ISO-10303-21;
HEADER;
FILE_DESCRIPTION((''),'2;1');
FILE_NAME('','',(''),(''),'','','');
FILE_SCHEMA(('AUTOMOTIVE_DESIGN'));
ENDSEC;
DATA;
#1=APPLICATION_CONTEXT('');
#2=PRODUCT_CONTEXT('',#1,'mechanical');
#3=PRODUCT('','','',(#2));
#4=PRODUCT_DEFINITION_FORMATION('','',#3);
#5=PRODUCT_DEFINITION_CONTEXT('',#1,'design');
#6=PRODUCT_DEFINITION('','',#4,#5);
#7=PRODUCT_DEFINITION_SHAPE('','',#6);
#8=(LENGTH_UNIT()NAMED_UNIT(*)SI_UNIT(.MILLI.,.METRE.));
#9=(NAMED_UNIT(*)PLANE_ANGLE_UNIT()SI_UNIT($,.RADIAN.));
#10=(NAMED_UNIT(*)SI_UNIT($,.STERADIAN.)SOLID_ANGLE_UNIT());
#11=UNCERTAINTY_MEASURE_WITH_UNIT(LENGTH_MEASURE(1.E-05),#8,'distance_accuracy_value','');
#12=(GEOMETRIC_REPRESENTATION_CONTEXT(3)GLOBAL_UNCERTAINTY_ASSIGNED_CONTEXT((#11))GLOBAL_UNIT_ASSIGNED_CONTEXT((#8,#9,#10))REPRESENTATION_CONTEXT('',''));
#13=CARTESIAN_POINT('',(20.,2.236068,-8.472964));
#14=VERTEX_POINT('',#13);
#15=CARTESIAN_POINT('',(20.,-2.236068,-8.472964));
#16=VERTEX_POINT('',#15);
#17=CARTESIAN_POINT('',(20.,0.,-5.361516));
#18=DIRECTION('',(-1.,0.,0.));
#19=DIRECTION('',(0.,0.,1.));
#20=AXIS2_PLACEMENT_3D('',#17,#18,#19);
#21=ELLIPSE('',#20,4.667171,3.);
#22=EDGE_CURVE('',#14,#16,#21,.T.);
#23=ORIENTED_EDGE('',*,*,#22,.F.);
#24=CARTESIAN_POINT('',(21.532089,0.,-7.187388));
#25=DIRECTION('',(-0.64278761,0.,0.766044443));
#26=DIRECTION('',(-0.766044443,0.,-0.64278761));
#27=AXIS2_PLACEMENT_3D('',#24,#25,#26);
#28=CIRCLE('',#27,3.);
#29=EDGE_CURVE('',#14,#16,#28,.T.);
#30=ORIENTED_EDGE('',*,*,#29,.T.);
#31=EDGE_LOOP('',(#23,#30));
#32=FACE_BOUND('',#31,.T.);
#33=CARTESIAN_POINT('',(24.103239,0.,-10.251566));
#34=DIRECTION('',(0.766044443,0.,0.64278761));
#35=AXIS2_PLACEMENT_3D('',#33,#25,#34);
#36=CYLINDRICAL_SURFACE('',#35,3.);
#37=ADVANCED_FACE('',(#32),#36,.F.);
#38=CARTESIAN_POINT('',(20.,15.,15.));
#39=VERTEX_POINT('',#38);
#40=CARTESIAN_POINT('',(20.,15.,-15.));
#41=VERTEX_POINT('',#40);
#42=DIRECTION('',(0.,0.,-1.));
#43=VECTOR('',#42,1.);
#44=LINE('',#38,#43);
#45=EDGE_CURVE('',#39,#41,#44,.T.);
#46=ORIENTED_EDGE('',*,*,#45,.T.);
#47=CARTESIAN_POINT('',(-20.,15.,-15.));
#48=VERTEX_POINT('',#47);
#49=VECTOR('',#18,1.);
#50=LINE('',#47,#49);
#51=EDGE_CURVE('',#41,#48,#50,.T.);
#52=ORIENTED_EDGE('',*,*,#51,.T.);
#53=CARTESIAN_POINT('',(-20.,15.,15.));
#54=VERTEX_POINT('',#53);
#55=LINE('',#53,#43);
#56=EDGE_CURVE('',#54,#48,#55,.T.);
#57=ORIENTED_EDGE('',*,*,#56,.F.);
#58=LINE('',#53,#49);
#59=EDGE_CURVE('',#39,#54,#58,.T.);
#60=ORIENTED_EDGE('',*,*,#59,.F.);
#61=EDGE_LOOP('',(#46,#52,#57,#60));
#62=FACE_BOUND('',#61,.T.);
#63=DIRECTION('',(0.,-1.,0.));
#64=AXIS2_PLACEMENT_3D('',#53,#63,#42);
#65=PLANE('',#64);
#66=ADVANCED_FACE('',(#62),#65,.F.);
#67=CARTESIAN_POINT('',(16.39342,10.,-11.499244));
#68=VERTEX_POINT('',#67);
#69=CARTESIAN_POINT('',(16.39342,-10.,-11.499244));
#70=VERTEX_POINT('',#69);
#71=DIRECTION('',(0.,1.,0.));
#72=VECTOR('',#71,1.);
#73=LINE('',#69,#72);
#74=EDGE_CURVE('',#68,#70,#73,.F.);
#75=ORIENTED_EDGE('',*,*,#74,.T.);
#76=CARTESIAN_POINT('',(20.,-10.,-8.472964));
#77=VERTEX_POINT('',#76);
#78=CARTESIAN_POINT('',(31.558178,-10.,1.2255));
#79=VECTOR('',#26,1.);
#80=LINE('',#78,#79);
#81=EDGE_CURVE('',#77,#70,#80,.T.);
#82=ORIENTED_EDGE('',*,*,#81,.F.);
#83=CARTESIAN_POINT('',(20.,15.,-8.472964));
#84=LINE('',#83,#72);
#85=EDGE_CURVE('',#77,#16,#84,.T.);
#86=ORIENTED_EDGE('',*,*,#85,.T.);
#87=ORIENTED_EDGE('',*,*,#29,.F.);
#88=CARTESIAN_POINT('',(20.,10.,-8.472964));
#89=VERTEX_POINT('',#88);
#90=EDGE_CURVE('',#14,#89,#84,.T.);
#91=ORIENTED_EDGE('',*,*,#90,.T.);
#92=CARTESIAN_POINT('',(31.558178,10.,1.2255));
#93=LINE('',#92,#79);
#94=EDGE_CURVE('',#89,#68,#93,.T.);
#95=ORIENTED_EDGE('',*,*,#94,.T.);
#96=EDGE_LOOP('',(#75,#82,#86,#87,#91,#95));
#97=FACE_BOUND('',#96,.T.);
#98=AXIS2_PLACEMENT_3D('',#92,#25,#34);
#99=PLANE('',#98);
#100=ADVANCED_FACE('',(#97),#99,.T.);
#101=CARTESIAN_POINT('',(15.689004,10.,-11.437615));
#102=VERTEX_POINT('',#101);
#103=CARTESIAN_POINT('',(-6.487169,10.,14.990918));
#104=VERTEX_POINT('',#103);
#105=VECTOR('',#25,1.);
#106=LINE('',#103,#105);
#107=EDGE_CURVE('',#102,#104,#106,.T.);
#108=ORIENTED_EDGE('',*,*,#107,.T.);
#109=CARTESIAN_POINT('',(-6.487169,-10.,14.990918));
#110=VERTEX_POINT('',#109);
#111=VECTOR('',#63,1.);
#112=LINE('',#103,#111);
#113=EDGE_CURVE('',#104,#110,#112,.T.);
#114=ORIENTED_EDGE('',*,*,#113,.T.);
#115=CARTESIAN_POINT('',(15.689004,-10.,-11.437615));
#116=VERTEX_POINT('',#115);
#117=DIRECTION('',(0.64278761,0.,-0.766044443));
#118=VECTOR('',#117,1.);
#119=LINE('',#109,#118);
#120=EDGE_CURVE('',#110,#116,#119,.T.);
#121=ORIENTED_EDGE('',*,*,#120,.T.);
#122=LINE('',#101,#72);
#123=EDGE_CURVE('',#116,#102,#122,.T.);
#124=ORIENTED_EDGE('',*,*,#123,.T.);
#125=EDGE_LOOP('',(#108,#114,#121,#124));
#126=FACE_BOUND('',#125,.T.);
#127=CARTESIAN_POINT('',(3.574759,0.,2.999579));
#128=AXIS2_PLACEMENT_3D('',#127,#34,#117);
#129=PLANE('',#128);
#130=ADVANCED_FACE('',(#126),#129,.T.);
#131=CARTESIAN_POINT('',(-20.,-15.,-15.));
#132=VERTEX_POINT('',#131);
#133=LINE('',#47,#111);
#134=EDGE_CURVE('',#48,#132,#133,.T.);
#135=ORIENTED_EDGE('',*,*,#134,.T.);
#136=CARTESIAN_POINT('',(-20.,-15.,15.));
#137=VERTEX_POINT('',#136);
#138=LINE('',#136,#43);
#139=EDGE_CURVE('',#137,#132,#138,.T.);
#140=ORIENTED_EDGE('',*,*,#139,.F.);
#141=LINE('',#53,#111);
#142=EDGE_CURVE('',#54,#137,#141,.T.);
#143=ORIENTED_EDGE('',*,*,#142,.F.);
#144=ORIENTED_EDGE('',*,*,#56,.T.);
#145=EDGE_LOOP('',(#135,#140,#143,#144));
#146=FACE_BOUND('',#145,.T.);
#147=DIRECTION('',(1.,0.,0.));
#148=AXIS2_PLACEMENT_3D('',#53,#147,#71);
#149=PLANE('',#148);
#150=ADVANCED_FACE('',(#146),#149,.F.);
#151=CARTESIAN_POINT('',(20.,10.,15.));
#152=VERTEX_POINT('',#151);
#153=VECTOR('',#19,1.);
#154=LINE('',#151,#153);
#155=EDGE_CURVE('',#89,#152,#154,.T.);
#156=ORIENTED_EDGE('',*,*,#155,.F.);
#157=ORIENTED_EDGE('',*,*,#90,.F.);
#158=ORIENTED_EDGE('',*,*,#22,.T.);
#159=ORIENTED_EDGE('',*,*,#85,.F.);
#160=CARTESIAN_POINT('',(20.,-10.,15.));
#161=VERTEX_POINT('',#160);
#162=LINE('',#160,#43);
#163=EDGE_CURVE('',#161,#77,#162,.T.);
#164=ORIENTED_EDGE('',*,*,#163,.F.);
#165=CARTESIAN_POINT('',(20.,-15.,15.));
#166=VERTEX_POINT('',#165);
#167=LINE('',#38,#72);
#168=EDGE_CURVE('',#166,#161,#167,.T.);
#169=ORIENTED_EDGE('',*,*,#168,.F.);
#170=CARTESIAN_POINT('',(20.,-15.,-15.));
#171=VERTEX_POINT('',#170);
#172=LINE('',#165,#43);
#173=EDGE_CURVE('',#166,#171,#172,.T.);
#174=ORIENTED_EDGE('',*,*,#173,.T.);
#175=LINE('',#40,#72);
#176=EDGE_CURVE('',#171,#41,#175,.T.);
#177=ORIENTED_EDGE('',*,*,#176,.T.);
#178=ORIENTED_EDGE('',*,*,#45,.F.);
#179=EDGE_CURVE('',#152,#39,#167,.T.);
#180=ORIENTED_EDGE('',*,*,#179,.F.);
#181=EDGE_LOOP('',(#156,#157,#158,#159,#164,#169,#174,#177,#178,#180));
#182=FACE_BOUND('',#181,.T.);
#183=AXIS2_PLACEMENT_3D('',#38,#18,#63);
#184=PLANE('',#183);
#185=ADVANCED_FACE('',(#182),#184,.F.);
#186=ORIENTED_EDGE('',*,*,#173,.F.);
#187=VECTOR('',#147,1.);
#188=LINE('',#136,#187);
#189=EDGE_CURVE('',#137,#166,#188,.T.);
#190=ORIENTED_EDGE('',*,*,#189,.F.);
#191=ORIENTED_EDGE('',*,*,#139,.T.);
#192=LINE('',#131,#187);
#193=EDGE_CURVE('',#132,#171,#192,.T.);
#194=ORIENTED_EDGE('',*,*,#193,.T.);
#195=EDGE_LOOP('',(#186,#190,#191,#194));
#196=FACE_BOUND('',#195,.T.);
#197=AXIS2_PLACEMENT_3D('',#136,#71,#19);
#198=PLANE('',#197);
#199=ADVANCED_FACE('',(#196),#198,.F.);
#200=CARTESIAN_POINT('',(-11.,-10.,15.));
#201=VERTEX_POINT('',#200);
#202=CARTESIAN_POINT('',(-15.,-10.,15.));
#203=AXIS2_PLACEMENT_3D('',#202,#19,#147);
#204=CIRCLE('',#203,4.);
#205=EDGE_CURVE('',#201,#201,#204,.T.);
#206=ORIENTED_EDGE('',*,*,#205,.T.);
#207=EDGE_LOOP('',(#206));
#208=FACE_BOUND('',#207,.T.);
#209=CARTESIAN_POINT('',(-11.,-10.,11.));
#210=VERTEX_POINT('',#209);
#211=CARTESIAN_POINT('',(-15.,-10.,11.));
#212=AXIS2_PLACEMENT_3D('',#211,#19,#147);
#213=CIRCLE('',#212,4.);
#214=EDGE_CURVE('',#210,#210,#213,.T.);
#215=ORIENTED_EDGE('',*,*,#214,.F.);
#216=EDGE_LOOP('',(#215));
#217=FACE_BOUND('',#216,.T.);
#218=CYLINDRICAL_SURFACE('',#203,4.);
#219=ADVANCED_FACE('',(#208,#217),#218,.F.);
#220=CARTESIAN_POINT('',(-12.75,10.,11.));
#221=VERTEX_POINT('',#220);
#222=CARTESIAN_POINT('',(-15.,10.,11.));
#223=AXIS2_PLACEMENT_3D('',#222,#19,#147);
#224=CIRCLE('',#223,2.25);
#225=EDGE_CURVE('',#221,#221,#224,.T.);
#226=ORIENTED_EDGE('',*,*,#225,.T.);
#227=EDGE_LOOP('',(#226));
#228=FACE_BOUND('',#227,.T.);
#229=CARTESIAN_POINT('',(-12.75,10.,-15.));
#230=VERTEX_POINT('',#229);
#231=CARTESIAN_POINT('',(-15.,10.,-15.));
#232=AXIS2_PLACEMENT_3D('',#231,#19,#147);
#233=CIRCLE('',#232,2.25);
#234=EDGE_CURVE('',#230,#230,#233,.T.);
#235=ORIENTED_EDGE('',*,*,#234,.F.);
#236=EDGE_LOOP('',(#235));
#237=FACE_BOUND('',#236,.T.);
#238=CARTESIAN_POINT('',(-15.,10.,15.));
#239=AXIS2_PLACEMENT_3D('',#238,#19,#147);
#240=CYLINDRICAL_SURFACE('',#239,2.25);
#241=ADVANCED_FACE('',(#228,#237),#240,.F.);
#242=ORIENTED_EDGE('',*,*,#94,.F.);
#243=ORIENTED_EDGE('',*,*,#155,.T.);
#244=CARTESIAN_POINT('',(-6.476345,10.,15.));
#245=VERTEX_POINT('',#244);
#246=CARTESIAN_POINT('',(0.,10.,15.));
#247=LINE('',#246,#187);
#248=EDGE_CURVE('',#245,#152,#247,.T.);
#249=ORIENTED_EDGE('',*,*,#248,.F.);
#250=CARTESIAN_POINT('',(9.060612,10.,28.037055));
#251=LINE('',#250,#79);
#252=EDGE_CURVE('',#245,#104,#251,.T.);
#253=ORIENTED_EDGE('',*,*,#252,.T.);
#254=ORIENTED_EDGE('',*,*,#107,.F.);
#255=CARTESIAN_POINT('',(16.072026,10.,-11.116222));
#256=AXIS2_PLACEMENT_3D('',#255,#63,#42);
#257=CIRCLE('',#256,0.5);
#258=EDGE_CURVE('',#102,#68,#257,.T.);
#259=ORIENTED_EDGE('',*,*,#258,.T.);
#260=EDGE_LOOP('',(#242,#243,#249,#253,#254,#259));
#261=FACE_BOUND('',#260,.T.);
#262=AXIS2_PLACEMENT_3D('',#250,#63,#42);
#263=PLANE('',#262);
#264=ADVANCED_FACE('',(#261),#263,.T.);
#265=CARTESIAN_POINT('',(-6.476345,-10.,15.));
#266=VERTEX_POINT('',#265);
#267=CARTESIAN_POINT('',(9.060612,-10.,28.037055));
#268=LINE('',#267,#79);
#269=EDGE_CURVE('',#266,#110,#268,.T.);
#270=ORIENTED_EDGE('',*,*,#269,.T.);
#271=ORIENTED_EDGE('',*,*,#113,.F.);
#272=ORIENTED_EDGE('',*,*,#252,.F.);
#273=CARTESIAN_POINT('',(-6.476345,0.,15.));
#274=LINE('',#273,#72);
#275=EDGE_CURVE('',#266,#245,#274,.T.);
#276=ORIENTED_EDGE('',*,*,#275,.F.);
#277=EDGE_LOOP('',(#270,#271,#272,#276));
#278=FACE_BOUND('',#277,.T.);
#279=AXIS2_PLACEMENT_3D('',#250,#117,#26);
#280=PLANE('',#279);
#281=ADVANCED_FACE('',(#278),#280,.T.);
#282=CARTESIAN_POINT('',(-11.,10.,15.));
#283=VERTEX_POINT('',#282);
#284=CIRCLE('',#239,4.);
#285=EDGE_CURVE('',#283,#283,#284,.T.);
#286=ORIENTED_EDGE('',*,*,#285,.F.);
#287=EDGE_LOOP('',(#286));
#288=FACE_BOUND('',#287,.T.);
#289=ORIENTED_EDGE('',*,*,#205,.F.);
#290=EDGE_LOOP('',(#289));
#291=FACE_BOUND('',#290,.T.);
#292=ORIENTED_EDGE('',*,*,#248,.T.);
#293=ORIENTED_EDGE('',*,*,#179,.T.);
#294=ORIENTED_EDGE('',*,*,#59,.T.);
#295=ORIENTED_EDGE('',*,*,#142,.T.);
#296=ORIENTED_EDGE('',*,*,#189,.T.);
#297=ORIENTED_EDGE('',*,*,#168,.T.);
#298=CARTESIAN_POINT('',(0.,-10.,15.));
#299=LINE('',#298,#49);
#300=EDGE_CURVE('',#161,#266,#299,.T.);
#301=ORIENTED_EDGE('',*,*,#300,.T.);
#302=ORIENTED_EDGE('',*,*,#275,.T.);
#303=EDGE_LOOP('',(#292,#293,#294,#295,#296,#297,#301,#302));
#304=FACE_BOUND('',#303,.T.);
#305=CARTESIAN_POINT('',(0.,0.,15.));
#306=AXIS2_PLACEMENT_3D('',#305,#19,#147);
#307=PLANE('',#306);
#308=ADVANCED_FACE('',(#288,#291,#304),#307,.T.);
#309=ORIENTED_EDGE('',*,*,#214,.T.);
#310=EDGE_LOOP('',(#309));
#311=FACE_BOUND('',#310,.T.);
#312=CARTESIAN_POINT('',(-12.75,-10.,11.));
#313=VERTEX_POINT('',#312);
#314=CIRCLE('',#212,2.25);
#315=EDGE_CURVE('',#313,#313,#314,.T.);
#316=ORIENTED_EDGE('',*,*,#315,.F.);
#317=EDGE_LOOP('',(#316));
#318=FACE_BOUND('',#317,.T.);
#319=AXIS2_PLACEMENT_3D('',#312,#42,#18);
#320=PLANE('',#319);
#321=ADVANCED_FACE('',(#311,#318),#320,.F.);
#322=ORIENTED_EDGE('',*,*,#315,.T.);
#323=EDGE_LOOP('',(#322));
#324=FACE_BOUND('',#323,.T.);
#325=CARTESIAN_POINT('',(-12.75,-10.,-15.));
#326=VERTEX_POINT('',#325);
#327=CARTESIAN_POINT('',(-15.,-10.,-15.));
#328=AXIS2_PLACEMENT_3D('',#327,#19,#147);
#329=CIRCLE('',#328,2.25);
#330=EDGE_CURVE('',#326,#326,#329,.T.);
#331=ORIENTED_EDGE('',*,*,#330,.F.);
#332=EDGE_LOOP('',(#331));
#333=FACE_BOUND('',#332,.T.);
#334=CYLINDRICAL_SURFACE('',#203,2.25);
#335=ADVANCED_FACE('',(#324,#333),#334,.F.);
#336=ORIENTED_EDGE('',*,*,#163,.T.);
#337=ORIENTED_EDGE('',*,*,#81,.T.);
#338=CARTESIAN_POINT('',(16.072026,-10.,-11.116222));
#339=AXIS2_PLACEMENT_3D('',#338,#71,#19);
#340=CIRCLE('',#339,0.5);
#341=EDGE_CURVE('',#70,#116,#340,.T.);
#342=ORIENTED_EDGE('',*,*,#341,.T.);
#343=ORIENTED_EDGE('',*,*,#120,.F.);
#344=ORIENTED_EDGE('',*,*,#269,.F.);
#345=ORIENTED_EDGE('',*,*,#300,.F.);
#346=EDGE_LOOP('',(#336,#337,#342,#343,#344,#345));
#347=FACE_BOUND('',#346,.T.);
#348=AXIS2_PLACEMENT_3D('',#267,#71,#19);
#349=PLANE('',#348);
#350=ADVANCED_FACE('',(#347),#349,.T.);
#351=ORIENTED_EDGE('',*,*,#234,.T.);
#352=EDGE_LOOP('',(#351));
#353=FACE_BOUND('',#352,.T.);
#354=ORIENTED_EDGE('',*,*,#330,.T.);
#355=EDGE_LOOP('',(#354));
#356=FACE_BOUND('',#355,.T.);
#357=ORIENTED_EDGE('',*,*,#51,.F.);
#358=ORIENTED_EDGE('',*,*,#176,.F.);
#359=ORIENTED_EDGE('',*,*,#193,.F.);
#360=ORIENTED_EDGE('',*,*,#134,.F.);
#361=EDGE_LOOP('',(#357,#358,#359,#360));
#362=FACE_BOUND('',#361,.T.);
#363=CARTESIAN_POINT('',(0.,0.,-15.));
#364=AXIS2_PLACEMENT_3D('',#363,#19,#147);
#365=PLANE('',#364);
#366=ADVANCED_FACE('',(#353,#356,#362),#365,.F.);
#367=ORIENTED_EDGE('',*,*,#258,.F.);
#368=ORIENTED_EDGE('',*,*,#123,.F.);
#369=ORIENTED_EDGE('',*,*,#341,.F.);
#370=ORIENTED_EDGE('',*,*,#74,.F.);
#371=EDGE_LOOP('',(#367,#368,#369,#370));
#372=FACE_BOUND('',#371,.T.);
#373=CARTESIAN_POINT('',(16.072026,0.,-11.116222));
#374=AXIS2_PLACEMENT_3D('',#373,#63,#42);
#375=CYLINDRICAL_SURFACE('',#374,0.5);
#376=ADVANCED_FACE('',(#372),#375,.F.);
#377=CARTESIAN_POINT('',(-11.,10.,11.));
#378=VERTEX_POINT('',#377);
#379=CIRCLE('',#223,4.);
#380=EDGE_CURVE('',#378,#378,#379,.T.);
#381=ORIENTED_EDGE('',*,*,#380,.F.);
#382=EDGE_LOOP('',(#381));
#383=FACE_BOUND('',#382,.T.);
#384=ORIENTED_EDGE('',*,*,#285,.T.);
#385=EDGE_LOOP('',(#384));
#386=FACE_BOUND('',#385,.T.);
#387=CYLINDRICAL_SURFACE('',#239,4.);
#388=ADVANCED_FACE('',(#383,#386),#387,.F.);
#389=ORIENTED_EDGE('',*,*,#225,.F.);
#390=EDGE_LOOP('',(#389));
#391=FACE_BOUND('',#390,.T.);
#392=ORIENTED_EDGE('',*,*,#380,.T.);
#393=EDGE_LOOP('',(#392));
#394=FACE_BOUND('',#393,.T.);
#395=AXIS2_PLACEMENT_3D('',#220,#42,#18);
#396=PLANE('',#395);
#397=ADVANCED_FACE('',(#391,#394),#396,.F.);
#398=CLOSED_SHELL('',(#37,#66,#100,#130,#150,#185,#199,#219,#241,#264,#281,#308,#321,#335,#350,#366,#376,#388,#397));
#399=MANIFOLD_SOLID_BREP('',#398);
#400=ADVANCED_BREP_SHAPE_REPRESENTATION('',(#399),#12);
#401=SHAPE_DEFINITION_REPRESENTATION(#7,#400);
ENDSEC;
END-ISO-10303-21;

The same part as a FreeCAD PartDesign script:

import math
import FreeCAD as App
import Part
import Sketcher

V = App.Vector


def edges_at(feature, points):
    """Names of the edges that pass closest to the given points."""
    edges = feature.Shape.Edges
    near = lambda p: min(range(len(edges)), key=lambda i: edges[i].distToShape(Part.Vertex(*p))[0])
    return sorted({f"Edge{near(p) + 1}" for p in points})


def add_polygon(sketch, points):
    """Adds a closed chain of lines whose ends are joined by coincident constraints."""
    first, n = sketch.GeometryCount, len(points)
    for a, b in zip(points, points[1:] + points[:1]):
        sketch.addGeometry(Part.LineSegment(App.Vector(*a, 0), App.Vector(*b, 0)), False)
    for i in range(n):
        sketch.addConstraint(Sketcher.Constraint("Coincident", first + i, 2, first + (i + 1) % n, 1))

doc = App.newDocument("Part")
body = doc.addObject("PartDesign::Body", "Body")

sketch1 = body.newObject("Sketcher::SketchObject", "Sketch")
sketch1.AttachmentSupport = (doc.getObject("XY_Plane"), [""])
sketch1.MapMode = "FlatFace"
add_polygon(sketch1, [(-20, 15), (-20, -15), (20, -15), (20, 15)])
sketch1.addConstraint(Sketcher.Constraint("Vertical", 0))
sketch1.addConstraint(Sketcher.Constraint("Horizontal", 1))
sketch1.addConstraint(Sketcher.Constraint("Vertical", 2))
sketch1.addConstraint(Sketcher.Constraint("Horizontal", 3))
sketch1.addConstraint(Sketcher.Constraint("Symmetric", 0, 2, 2, 2, -1, 1))
sketch1.addConstraint(Sketcher.Constraint("DistanceX", 1, 1, 1, 2, 40.0))
sketch1.addConstraint(Sketcher.Constraint("DistanceY", 0, 2, 0, 1, 30.0))
pad1 = body.newObject("PartDesign::Pad", "Pad")
pad1.Profile = sketch1
pad1.Length = 30
pad1.Midplane = True

sketch2 = body.newObject("Sketcher::SketchObject", "Sketch001")
sketch2.Placement = App.Placement(V(3.574759, 0, 2.999579), App.Rotation(V(-0.64278761, 0, 0.766044443), V(0, -1, 0), V(0.766044443, 0, 0.64278761), "ZXY"))
add_polygon(sketch2, [(-19, 10), (-19, -10), (16, -10), (16, 10)])
sketch2.addConstraint(Sketcher.Constraint("Vertical", 0))
sketch2.addConstraint(Sketcher.Constraint("Horizontal", 1))
sketch2.addConstraint(Sketcher.Constraint("Vertical", 2))
sketch2.addConstraint(Sketcher.Constraint("Horizontal", 3))
sketch2.addConstraint(Sketcher.Constraint("DistanceX", 1, 1, 1, 2, 35.0))
sketch2.addConstraint(Sketcher.Constraint("DistanceY", 0, 2, 0, 1, 20.0))
sketch2.addConstraint(Sketcher.Constraint("DistanceY", 0, 2, -1, 1, 10.0))
sketch2.addConstraint(Sketcher.Constraint("DistanceX", 0, 2, -1, 1, 19.346419))
pocket1 = body.newObject("PartDesign::Pocket", "Pocket")
pocket1.Profile = sketch2
pocket1.Type = "ThroughAll"
pocket1.Reversed = True
doc.recompute()

fillet = body.newObject("PartDesign::Fillet", "Fillet")
fillet.Base = (pocket1, edges_at(pocket1, [(16.01, 0, -11.821)]))
fillet.Radius = 0.5

sketch3 = body.newObject("Sketcher::SketchObject", "Sketch002")
sketch3.Placement = App.Placement(V(12.435638, 0, -14.820217), App.Rotation(V(0.766044443, 0, 0.64278761), V(0, 1, 0), V(-0.64278761, 0, 0.766044443), "ZXY"))
sketch3.addGeometry(Part.LineSegment(V(9.9, -2.2, 0), V(9.9, 2.2, 0)), False)
sketch3.addGeometry(Part.ArcOfCircle(Part.Circle(V(11.9, 0, 0), V(0, 0, 1), 3), math.radians(132), math.radians(228)), False)
sketch3.addConstraint(Sketcher.Constraint("Coincident", 0, 1, 1, 2))
sketch3.addConstraint(Sketcher.Constraint("Coincident", 1, 1, 0, 2))
sketch3.addConstraint(Sketcher.Constraint("Vertical", 0))
sketch3.addConstraint(Sketcher.Constraint("PointOnObject", 1, 3, -1))
sketch3.addConstraint(Sketcher.Constraint("Radius", 1, 3.0))
sketch3.addConstraint(Sketcher.Constraint("DistanceX", 0, 1, 1, 3, 2.0))
sketch3.addConstraint(Sketcher.Constraint("DistanceX", -1, 1, 1, 3, 11.874573))
pocket2 = body.newObject("PartDesign::Pocket", "Pocket001")
pocket2.Profile = sketch3
pocket2.Length = 4

sketch4 = body.newObject("Sketcher::SketchObject", "Sketch003")
sketch4.AttachmentSupport = (doc.getObject("XY_Plane"), [""])
sketch4.MapMode = "FlatFace"
sketch4.AttachmentOffset = App.Placement(V(0, 0, 15), App.Rotation())
sketch4.addGeometry(Part.Circle(V(-15, 10, 0), V(0, 0, 1), 2.2), False)
sketch4.addGeometry(Part.Circle(V(-15, -10, 0), V(0, 0, 1), 2.2), False)
sketch4.addConstraint(Sketcher.Constraint("Equal", 0, 1))
sketch4.addConstraint(Sketcher.Constraint("Symmetric", 0, 3, 1, 3, -1))
sketch4.addConstraint(Sketcher.Constraint("Diameter", 0, 4.5))
sketch4.addConstraint(Sketcher.Constraint("DistanceX", 0, 3, -1, 1, 15.0))
sketch4.addConstraint(Sketcher.Constraint("DistanceY", -1, 1, 0, 3, 10.0))
doc.recompute()
hole = body.newObject("PartDesign::Hole", "Hole")
hole.Profile = sketch4
hole.ThreadType = "None"
hole.Diameter = 4.5
hole.DepthType = "ThroughAll"
hole.HoleCutType = "Counterbore"
hole.HoleCutDiameter = 8
hole.HoleCutDepth = 4

doc.recompute()
